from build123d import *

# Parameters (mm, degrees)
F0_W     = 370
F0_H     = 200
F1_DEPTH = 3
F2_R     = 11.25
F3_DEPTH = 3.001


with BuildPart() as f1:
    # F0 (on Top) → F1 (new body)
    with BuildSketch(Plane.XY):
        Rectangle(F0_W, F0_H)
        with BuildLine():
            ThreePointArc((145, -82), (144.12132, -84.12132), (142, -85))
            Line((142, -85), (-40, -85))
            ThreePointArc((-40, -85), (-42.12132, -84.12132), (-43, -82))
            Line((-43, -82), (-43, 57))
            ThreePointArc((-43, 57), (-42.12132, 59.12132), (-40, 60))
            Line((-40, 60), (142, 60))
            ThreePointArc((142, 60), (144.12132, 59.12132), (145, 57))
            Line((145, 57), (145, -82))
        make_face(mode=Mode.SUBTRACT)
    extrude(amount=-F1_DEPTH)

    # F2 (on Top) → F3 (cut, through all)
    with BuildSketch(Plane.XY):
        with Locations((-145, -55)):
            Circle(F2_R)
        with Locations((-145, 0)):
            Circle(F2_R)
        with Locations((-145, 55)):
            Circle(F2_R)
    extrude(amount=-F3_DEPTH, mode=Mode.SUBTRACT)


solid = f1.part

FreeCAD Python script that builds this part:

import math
import FreeCAD as App
import Part
import Sketcher
Q = App.Units.Quantity

doc = App.newDocument("Part")
body = doc.addObject("PartDesign::Body", "Body")

# Sketch on XY plane
sketch1 = body.newObject("Sketcher::SketchObject", "Sketch")
sketch1.AttachmentSupport = (doc.getObject("XY_Plane"), [""])
sketch1.MapMode = "FlatFace"
sketch1.addGeometry(Part.LineSegment(App.Vector(-185, 100, 0), App.Vector(-185, -100, 0)), False)
sketch1.addGeometry(Part.LineSegment(App.Vector(-185, -100, 0), App.Vector(185, -100, 0)), False)
sketch1.addGeometry(Part.LineSegment(App.Vector(185, -100, 0), App.Vector(185, 100, 0)), False)
sketch1.addGeometry(Part.LineSegment(App.Vector(185, 100, 0), App.Vector(-185, 100, 0)), False)
sketch1.addGeometry(Part.LineSegment(App.Vector(145, 57, 0), App.Vector(145, -82, 0)), False)
sketch1.addGeometry(Part.ArcOfCircle(Part.Circle(App.Vector(142, -82, 0), App.Vector(0, 0, 1), 3), math.radians(-90), math.radians(0)), False)
sketch1.addGeometry(Part.LineSegment(App.Vector(142, -85, 0), App.Vector(-40, -85, 0)), False)
sketch1.addGeometry(Part.ArcOfCircle(Part.Circle(App.Vector(-40, -82, 0), App.Vector(0, 0, 1), 3), math.radians(-180), math.radians(-90)), False)
sketch1.addGeometry(Part.LineSegment(App.Vector(-43, -82, 0), App.Vector(-43, 57, 0)), False)
sketch1.addGeometry(Part.ArcOfCircle(Part.Circle(App.Vector(-40, 57, 0), App.Vector(0, 0, 1), 3), math.radians(90), math.radians(180)), False)
sketch1.addGeometry(Part.LineSegment(App.Vector(-40, 60, 0), App.Vector(142, 60, 0)), False)
sketch1.addGeometry(Part.ArcOfCircle(Part.Circle(App.Vector(142, 57, 0), App.Vector(0, 0, 1), 3), math.radians(0), math.radians(90)), False)
sketch1.addConstraint(Sketcher.Constraint("Coincident", 0, 2, 1, 1))
sketch1.addConstraint(Sketcher.Constraint("Coincident", 1, 2, 2, 1))
sketch1.addConstraint(Sketcher.Constraint("Coincident", 2, 2, 3, 1))
sketch1.addConstraint(Sketcher.Constraint("Coincident", 3, 2, 0, 1))
sketch1.addConstraint(Sketcher.Constraint("Tangent", 4, 2, 5, 2))
sketch1.addConstraint(Sketcher.Constraint("Tangent", 5, 1, 6, 1))
sketch1.addConstraint(Sketcher.Constraint("Tangent", 6, 2, 7, 2))
sketch1.addConstraint(Sketcher.Constraint("Tangent", 7, 1, 8, 1))
sketch1.addConstraint(Sketcher.Constraint("Tangent", 8, 2, 9, 2))
sketch1.addConstraint(Sketcher.Constraint("Tangent", 9, 1, 10, 1))
sketch1.addConstraint(Sketcher.Constraint("Tangent", 10, 2, 11, 2))
sketch1.addConstraint(Sketcher.Constraint("Tangent", 11, 1, 4, 1))
sketch1.addConstraint(Sketcher.Constraint("Vertical", 0))
sketch1.addConstraint(Sketcher.Constraint("Horizontal", 1))
sketch1.addConstraint(Sketcher.Constraint("Vertical", 2))
sketch1.addConstraint(Sketcher.Constraint("Horizontal", 3))
sketch1.addConstraint(Sketcher.Constraint("Vertical", 4))
sketch1.addConstraint(Sketcher.Constraint("Horizontal", 6))
sketch1.addConstraint(Sketcher.Constraint("Vertical", 8))
sketch1.addConstraint(Sketcher.Constraint("Horizontal", 10))
sketch1.addConstraint(Sketcher.Constraint("Equal", 5, 7))
sketch1.addConstraint(Sketcher.Constraint("Equal", 7, 9))
sketch1.addConstraint(Sketcher.Constraint("Equal", 9, 11))
sketch1.addConstraint(Sketcher.Constraint("Symmetric", 0, 2, 2, 2, -1, 1))
sketch1.addConstraint(Sketcher.Constraint("Radius", 5, Q("3.000001 mm")))
sketch1.addConstraint(Sketcher.Constraint("DistanceX", 1, 1, 1, 2, Q("370 mm")))
sketch1.addConstraint(Sketcher.Constraint("DistanceX", 6, 2, 6, 1, Q("182 mm")))
sketch1.addConstraint(Sketcher.Constraint("DistanceY", 0, 2, 0, 1, Q("200 mm")))
sketch1.addConstraint(Sketcher.Constraint("DistanceY", 4, 2, 4, 1, Q("139 mm")))
sketch1.addConstraint(Sketcher.Constraint("DistanceX", -1, 1, 5, 3, Q("141.999999 mm")))
sketch1.addConstraint(Sketcher.Constraint("DistanceY", 5, 3, -1, 1, Q("81.999999 mm")))
pad1 = body.newObject("PartDesign::Pad", "Pad")
pad1.Profile = sketch1
pad1.Length = 3
pad1.Reversed = True

# Sketch on XY plane
sketch2 = body.newObject("Sketcher::SketchObject", "Sketch001")
sketch2.AttachmentSupport = (doc.getObject("XY_Plane"), [""])
sketch2.MapMode = "FlatFace"
sketch2.addGeometry(Part.Circle(App.Vector(-145, -55, 0), App.Vector(0, 0, 1), 11), False)
sketch2.addGeometry(Part.Circle(App.Vector(-145, 0, 0), App.Vector(0, 0, 1), 11), False)
sketch2.addGeometry(Part.Circle(App.Vector(-145, 55, 0), App.Vector(0, 0, 1), 11), False)
sketch2.addConstraint(Sketcher.Constraint("Equal", 0, 1))
sketch2.addConstraint(Sketcher.Constraint("Equal", 1, 2))
sketch2.addConstraint(Sketcher.Constraint("Symmetric", 0, 3, 2, 3, -1))
sketch2.addConstraint(Sketcher.Constraint("PointOnObject", 1, 3, -1))
sketch2.addConstraint(Sketcher.Constraint("Vertical", 0, 3, 1, 3))
sketch2.addConstraint(Sketcher.Constraint("Diameter", 0, Q("22.5 mm")))
sketch2.addConstraint(Sketcher.Constraint("DistanceX", 0, 3, -1, 1, Q("145 mm")))
sketch2.addConstraint(Sketcher.Constraint("DistanceY", 0, 3, -1, 1, Q("55 mm")))
pocket1 = body.newObject("PartDesign::Pocket", "Pocket")
pocket1.Profile = sketch2
pocket1.Type = "ThroughAll"

doc.recompute()
